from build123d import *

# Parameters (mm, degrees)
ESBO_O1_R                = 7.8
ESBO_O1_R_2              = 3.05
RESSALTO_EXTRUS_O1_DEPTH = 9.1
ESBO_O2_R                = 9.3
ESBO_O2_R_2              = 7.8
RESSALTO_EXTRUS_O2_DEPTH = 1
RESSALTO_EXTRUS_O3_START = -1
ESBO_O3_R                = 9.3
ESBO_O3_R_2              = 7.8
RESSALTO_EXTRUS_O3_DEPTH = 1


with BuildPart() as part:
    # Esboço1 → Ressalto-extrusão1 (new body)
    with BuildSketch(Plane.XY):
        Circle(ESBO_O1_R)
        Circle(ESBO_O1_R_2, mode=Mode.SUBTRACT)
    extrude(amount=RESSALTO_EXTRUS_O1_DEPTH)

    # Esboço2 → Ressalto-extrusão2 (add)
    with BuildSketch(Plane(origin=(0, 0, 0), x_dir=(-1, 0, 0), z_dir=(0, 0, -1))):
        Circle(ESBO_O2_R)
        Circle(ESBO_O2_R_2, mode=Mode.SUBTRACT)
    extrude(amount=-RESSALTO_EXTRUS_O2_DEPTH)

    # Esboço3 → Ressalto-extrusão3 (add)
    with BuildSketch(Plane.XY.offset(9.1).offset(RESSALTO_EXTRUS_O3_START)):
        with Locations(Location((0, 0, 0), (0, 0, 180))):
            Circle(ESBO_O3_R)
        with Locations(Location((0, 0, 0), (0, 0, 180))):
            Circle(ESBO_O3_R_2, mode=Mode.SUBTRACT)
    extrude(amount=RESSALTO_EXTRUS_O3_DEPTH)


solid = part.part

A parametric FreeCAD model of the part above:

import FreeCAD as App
import Part
import Sketcher

V = App.Vector

doc = App.newDocument("Part")
params = doc.addObject("Spreadsheet::Sheet", "Params")
for row, (alias, value) in enumerate([
    ("sketch1_diameter", "15.6 mm"),
    ("sketch1_diameter2", "6.1 mm"),
    ("pad1_length", "9.1 mm"),
    ("sketch2_diameter", "18.6 mm"),
    ("sketch2_diameter2", "15.6 mm"),
    ("pad2_length", "1 mm"),
    ("sketch3_diameter", "18.6 mm"),
    ("sketch3_diameter2", "15.6 mm"),
    ("pad3_length", "1 mm"),
], start=1):
    params.set(f"A{row}", alias)
    params.set(f"B{row}", "=" + value)
    params.setAlias(f"B{row}", alias)

body = doc.addObject("PartDesign::Body", "Body")

sketch1 = body.newObject("Sketcher::SketchObject", "Sketch")
sketch1.AttachmentSupport = (doc.getObject("XY_Plane"), [""])
sketch1.MapMode = "FlatFace"
sketch1.addGeometry([
    Part.Circle(V(0, 0, 0), V(0, 0, 1), 7.8),
    Part.Circle(V(0, 0, 0), V(0, 0, 1), 3),
], False)
sketch1.addConstraint([
    Sketcher.Constraint("Coincident", 0, 3, -1, 1),
    Sketcher.Constraint("Coincident", 1, 3, -1, 1),
    Sketcher.Constraint("Diameter", 0, 15.6),
    Sketcher.Constraint("Diameter", 1, 6.1),
])
sketch1.setExpression("Constraints[2]", "Params.sketch1_diameter")
sketch1.setExpression("Constraints[3]", "Params.sketch1_diameter2")
pad1 = body.newObject("PartDesign::Pad", "Pad")
pad1.Profile = sketch1
pad1.setExpression("Length", "Params.pad1_length")

sketch2 = body.newObject("Sketcher::SketchObject", "Sketch001")
sketch2.AttachmentSupport = (doc.getObject("XY_Plane"), [""])
sketch2.MapMode = "FlatFace"
sketch2.addGeometry([
    Part.Circle(V(0, 0, 0), V(0, 0, 1), 9),
    Part.Circle(V(0, 0, 0), V(0, 0, 1), 8),
], False)
sketch2.addConstraint([
    Sketcher.Constraint("Coincident", 0, 3, -1, 1),
    Sketcher.Constraint("Coincident", 1, 3, -1, 1),
    Sketcher.Constraint("Diameter", 0, 18.6),
    Sketcher.Constraint("Diameter", 1, 15.6),
])
sketch2.setExpression("Constraints[2]", "Params.sketch2_diameter")
sketch2.setExpression("Constraints[3]", "Params.sketch2_diameter2")
pad2 = body.newObject("PartDesign::Pad", "Pad001")
pad2.Profile = sketch2
pad2.setExpression("Length", "Params.pad2_length")

sketch3 = body.newObject("Sketcher::SketchObject", "Sketch002")
sketch3.AttachmentSupport = (doc.getObject("XY_Plane"), [""])
sketch3.MapMode = "FlatFace"
sketch3.AttachmentOffset = App.Placement(V(0, 0, 8.1), App.Rotation())
sketch3.addGeometry([
    Part.Circle(V(0, 0, 0), V(0, 0, 1), 9),
    Part.Circle(V(0, 0, 0), V(0, 0, 1), 8),
], False)
sketch3.addConstraint([
    Sketcher.Constraint("Coincident", 0, 3, -1, 1),
    Sketcher.Constraint("Coincident", 1, 3, -1, 1),
    Sketcher.Constraint("Diameter", 0, 18.6),
    Sketcher.Constraint("Diameter", 1, 15.6),
])
sketch3.setExpression("Constraints[2]", "Params.sketch3_diameter")
sketch3.setExpression("Constraints[3]", "Params.sketch3_diameter2")
pad3 = body.newObject("PartDesign::Pad", "Pad002")
pad3.Profile = sketch3
pad3.setExpression("Length", "Params.pad3_length")

doc.recompute()
